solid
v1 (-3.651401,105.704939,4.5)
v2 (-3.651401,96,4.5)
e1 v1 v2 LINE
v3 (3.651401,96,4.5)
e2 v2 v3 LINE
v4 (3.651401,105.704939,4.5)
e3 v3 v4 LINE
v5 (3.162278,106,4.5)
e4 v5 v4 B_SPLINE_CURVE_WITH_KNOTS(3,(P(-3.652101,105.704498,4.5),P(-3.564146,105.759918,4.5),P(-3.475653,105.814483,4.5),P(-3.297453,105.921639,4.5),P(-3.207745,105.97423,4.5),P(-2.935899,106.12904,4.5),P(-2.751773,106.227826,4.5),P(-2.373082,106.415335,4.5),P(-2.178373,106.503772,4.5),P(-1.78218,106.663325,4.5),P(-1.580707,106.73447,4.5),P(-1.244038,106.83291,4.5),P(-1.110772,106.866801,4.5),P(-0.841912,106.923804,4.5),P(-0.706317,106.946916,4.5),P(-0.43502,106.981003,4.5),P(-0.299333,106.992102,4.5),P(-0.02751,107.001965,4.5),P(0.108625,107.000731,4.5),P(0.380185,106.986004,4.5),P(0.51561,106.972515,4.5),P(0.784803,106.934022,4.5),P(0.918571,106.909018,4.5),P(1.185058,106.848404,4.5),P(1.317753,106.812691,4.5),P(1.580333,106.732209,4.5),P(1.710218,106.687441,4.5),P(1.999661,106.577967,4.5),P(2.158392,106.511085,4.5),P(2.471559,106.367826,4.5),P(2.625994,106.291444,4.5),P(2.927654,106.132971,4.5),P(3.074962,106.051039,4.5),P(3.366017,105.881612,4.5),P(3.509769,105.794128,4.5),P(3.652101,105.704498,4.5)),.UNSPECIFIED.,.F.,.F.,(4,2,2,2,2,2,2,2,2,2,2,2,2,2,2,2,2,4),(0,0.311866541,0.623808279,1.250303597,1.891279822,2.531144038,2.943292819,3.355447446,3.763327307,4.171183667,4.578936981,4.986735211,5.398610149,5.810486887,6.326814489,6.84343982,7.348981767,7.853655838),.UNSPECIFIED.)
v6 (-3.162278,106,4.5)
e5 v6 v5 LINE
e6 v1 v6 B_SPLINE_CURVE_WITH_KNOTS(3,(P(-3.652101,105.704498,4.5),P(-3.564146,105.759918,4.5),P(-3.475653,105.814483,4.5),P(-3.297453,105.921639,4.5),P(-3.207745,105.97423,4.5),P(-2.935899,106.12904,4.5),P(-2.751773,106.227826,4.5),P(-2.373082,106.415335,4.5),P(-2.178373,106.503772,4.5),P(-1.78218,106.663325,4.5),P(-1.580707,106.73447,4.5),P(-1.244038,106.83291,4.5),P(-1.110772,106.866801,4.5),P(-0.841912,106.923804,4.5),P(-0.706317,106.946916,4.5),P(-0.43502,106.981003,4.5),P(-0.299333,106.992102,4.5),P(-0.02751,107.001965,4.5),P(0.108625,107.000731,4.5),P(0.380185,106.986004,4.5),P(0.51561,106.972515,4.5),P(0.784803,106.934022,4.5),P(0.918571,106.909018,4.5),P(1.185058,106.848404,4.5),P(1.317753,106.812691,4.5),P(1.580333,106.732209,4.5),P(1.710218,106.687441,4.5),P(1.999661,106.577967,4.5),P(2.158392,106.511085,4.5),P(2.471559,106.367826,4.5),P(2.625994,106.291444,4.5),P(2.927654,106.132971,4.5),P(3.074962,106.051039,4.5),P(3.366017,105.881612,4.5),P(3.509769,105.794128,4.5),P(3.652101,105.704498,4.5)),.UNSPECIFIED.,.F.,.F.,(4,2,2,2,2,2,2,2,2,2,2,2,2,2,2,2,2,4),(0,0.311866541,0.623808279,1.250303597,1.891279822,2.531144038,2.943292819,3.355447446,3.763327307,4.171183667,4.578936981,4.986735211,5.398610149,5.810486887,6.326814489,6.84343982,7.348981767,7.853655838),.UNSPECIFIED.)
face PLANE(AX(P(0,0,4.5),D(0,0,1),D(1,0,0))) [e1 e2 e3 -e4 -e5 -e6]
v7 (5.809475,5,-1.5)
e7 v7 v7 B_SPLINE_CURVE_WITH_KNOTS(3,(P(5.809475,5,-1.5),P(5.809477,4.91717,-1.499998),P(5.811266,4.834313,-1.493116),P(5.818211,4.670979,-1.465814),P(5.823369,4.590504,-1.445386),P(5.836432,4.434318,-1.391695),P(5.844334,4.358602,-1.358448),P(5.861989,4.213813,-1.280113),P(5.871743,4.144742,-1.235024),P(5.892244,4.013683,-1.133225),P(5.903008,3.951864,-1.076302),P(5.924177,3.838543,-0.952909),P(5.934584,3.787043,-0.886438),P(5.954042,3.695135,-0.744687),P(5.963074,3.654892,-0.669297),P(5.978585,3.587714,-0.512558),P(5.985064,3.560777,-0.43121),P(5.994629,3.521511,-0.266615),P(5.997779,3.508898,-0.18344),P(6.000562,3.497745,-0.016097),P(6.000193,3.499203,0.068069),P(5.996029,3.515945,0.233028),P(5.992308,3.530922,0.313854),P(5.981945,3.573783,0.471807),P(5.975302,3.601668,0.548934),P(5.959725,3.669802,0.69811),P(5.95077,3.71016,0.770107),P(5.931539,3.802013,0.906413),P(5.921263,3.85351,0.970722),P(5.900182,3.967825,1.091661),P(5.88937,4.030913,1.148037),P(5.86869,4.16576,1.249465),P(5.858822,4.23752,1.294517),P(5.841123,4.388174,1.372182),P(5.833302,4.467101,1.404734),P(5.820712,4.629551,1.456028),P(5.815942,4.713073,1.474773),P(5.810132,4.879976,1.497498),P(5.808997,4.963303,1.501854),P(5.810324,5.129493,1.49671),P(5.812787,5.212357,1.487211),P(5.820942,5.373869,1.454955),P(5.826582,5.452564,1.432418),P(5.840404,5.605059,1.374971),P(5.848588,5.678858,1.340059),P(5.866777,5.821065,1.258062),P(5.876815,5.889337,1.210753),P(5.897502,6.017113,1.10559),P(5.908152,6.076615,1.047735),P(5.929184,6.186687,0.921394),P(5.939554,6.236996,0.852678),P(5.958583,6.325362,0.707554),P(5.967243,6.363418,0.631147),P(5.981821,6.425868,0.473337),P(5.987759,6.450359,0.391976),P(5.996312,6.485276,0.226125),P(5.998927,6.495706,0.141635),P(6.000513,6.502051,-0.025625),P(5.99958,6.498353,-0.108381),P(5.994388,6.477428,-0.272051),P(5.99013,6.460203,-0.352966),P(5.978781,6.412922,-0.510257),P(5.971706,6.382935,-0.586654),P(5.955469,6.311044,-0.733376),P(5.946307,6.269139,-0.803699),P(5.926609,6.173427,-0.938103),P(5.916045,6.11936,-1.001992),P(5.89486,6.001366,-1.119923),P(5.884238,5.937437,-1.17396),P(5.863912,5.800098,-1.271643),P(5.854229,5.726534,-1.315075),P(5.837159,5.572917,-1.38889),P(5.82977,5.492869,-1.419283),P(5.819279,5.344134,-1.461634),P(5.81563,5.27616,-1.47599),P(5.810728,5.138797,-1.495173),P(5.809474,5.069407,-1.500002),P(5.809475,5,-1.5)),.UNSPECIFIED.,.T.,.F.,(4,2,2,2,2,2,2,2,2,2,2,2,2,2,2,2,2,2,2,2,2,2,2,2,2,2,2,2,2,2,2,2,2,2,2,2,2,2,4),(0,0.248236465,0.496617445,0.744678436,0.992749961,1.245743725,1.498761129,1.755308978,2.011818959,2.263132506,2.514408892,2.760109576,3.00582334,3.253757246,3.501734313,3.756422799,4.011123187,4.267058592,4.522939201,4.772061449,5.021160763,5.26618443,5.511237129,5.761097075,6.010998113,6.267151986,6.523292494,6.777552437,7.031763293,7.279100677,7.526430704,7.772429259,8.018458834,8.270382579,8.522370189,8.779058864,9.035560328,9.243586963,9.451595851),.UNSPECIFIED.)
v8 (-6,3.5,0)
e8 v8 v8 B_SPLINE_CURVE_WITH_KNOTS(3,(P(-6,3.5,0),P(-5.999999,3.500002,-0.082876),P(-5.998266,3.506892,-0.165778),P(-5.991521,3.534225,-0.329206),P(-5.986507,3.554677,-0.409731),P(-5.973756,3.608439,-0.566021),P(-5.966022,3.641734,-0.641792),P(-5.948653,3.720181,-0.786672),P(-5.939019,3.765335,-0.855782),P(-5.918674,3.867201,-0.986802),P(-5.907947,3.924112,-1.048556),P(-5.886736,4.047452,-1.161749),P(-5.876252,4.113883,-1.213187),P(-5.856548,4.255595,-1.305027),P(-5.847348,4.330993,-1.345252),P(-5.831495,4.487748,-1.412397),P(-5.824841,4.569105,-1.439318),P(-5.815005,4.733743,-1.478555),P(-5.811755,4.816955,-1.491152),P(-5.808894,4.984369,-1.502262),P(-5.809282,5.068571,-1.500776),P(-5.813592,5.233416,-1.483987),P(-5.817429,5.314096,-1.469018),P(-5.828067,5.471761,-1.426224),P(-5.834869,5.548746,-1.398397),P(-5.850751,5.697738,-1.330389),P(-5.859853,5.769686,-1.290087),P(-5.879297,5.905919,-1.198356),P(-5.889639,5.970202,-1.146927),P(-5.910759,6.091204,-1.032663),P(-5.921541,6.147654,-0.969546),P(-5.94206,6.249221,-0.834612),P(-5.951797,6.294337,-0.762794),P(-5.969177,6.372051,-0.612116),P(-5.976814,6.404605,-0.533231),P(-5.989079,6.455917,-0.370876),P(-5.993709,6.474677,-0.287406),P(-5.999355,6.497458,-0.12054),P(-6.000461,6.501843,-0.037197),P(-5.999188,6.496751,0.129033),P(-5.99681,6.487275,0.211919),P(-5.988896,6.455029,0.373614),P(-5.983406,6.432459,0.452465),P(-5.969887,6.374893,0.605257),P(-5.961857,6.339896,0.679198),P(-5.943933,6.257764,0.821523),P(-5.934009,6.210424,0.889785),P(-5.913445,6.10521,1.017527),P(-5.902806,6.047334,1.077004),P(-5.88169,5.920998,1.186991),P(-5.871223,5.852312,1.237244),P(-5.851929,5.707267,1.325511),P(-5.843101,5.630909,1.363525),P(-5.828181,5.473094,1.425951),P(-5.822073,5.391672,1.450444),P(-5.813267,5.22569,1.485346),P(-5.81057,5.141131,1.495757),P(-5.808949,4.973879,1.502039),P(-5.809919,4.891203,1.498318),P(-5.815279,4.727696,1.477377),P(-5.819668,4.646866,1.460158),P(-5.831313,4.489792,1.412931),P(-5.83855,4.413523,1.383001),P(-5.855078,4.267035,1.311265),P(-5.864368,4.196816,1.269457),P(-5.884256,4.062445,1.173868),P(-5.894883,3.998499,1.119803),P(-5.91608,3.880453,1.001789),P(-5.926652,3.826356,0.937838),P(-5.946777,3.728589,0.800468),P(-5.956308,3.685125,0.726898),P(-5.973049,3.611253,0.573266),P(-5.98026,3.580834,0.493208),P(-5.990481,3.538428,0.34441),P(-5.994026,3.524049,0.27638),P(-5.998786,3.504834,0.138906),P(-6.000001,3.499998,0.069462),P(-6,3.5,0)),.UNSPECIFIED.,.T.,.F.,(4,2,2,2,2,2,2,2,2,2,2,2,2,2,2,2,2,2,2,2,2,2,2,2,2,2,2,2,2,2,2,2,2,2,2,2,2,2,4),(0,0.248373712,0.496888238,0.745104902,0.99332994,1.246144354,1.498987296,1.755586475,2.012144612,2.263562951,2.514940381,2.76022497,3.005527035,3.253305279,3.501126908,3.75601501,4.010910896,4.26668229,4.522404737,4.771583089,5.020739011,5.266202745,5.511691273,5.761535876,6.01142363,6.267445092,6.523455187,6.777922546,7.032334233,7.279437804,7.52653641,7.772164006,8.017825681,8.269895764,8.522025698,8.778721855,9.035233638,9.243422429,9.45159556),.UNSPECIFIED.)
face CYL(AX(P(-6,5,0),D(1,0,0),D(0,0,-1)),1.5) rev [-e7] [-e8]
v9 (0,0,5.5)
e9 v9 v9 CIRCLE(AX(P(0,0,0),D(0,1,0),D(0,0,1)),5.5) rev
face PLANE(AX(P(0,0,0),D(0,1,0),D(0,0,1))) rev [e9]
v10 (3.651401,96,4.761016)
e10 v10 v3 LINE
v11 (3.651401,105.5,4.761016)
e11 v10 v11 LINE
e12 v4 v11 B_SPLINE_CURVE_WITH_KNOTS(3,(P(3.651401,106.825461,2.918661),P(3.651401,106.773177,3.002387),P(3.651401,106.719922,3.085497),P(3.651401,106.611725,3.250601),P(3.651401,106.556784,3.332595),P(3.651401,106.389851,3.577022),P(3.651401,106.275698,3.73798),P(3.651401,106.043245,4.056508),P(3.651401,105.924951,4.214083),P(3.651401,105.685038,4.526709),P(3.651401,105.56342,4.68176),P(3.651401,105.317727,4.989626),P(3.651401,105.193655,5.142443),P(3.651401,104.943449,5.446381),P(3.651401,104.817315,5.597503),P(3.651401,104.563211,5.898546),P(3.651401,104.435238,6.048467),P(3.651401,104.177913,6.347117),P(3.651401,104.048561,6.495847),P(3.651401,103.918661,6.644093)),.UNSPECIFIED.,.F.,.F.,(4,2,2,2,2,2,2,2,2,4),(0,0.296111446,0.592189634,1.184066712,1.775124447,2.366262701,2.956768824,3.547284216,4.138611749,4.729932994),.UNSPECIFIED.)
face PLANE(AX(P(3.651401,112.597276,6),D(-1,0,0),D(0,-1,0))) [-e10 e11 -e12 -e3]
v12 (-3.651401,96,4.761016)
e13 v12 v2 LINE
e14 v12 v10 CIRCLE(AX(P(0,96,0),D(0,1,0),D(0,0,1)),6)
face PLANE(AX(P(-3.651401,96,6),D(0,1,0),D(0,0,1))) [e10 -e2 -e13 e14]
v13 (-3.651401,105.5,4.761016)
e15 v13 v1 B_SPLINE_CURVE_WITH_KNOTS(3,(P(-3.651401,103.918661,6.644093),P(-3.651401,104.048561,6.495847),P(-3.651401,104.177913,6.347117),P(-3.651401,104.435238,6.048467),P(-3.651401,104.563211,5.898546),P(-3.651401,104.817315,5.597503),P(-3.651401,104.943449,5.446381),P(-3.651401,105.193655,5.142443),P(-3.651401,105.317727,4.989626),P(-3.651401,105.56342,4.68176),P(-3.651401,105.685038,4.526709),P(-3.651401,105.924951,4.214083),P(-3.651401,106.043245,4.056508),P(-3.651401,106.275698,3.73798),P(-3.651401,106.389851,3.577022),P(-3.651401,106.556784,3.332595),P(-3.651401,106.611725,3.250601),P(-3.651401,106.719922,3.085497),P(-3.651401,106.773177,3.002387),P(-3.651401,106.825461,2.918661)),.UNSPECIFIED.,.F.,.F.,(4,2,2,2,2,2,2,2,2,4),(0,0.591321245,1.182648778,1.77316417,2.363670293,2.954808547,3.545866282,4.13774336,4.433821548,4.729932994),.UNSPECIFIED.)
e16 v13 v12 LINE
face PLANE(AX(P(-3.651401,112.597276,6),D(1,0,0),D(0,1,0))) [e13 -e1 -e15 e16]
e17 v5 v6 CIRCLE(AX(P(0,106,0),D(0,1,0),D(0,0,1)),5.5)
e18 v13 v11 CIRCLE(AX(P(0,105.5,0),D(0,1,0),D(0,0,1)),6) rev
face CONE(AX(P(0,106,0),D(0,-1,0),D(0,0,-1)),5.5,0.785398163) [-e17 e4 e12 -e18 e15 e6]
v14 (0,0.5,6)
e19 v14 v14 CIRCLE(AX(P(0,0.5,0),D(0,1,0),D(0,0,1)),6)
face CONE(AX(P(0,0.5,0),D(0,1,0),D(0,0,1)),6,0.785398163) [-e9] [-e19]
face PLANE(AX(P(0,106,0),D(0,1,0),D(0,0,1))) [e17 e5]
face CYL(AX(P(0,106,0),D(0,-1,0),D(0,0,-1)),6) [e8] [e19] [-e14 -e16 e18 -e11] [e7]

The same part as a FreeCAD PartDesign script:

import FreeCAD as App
import Part
import Sketcher
from FreeCAD import Vector
Q = App.Units.Quantity


def edges_at(feature, points):
    """Names of the edges that pass closest to the given points."""
    edges = feature.Shape.Edges
    near = lambda p: min(range(len(edges)), key=lambda i: edges[i].distToShape(Part.Vertex(*p))[0])
    return sorted({f"Edge{near(p) + 1}" for p in points})

doc = App.newDocument("Part")
body = doc.addObject("PartDesign::Body", "Body")

# Sketch on XZ plane
sketch1 = body.newObject("Sketcher::SketchObject", "Sketch")
sketch1.AttachmentSupport = (doc.getObject("XZ_Plane"), [""])
sketch1.MapMode = "FlatFace"
sketch1.addGeometry(Part.Circle(Vector(0, 0, 0), Vector(0, 0, 1), 6), False)
sketch1.addConstraint(Sketcher.Constraint("Coincident", 0, 3, -1, 1))
sketch1.addConstraint(Sketcher.Constraint("Diameter", 0, Q("12 mm")))
pad1 = body.newObject("PartDesign::Pad", "Pad")
pad1.Profile = sketch1
pad1.Length = 106
pad1.Reversed = True
doc.recompute()

chamfer = body.newObject("PartDesign::Chamfer", "Chamfer")
chamfer.Base = (pad1, edges_at(pad1, [(0, 0, -6), (0, 106, -6)]))
chamfer.Size = 0.5

# Sketch on YZ plane
sketch2 = body.newObject("Sketcher::SketchObject", "Sketch001")
sketch2.AttachmentSupport = (doc.getObject("YZ_Plane"), [""])
sketch2.MapMode = "FlatFace"
sketch2.addGeometry(Part.Circle(Vector(5, 0, 0), Vector(0, 0, 1), 1.5), False)
sketch2.addConstraint(Sketcher.Constraint("PointOnObject", 0, 3, -1))
sketch2.addConstraint(Sketcher.Constraint("Diameter", 0, Q("3 mm")))
sketch2.addConstraint(Sketcher.Constraint("DistanceX", -1, 1, 0, 3, Q("5 mm")))
pocket1 = body.newObject("PartDesign::Pocket", "Pocket")
pocket1.Profile = sketch2
pocket1.Type = "ThroughAll"
pocket1.Midplane = True

# Sketch on XY plane
sketch3 = body.newObject("Sketcher::SketchObject", "Sketch002")
sketch3.AttachmentSupport = (doc.getObject("XY_Plane"), [""])
sketch3.MapMode = "FlatFace"
sketch3.AttachmentOffset = App.Placement(Vector(0, 0, 4.5), App.Rotation())
sketch3.addGeometry(Part.LineSegment(Vector(-3.651401, 112.597276, 0), Vector(-3.651401, 96, 0)), False)
sketch3.addGeometry(Part.LineSegment(Vector(-3.651401, 96, 0), Vector(3.651401, 96, 0)), False)
sketch3.addGeometry(Part.LineSegment(Vector(3.651401, 96, 0), Vector(3.651401, 112.597276, 0)), False)
sketch3.addGeometry(Part.LineSegment(Vector(3.651401, 112.597276, 0), Vector(-3.651401, 112.597276, 0)), False)
sketch3.addConstraint(Sketcher.Constraint("Coincident", 0, 2, 1, 1))
sketch3.addConstraint(Sketcher.Constraint("Coincident", 1, 2, 2, 1))
sketch3.addConstraint(Sketcher.Constraint("Coincident", 2, 2, 3, 1))
sketch3.addConstraint(Sketcher.Constraint("Coincident", 3, 2, 0, 1))
sketch3.addConstraint(Sketcher.Constraint("Vertical", 0))
sketch3.addConstraint(Sketcher.Constraint("Horizontal", 1))
sketch3.addConstraint(Sketcher.Constraint("Vertical", 2))
sketch3.addConstraint(Sketcher.Constraint("Horizontal", 3))
sketch3.addConstraint(Sketcher.Constraint("DistanceY", -1, 1, 0, 2, Q("96 mm")))
sketch3.addConstraint(Sketcher.Constraint("DistanceX", 1, 1, 1, 2, Q("7.302802 mm")))
sketch3.addConstraint(Sketcher.Constraint("DistanceX", 0, 2, -1, 1, Q("3.651401 mm")))
sketch3.addConstraint(Sketcher.Constraint("DistanceY", 0, 2, 0, 1, Q("16.597276 mm")))
pocket2 = body.newObject("PartDesign::Pocket", "Pocket001")
pocket2.Profile = sketch3
pocket2.Type = "ThroughAll"
pocket2.Reversed = True

doc.recompute()
